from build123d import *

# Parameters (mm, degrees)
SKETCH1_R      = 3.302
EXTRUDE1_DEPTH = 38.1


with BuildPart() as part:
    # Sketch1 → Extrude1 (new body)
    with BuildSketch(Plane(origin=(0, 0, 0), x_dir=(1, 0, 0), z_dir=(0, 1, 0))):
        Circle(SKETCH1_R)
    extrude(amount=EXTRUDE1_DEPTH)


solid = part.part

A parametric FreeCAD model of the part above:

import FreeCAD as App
import Part
import Sketcher
from FreeCAD import Vector
Q = App.Units.Quantity

doc = App.newDocument("Part")
body = doc.addObject("PartDesign::Body", "Body")

# Sketch on XZ plane
sketch1 = body.newObject("Sketcher::SketchObject", "Sketch")
sketch1.AttachmentSupport = (doc.getObject("XZ_Plane"), [""])
sketch1.MapMode = "FlatFace"
sketch1.addGeometry(Part.Circle(Vector(0, 0, 0), Vector(0, 0, 1), 3.3), False)
sketch1.addConstraint([
    Sketcher.Constraint("Coincident", 0, 3, -1, 1),
    Sketcher.Constraint("Diameter", 0, Q("0.26 in")),
])
pad1 = body.newObject("PartDesign::Pad", "Pad")
pad1.Profile = sketch1
pad1.Length = Q("1.5 in")
pad1.Reversed = True

doc.recompute()
